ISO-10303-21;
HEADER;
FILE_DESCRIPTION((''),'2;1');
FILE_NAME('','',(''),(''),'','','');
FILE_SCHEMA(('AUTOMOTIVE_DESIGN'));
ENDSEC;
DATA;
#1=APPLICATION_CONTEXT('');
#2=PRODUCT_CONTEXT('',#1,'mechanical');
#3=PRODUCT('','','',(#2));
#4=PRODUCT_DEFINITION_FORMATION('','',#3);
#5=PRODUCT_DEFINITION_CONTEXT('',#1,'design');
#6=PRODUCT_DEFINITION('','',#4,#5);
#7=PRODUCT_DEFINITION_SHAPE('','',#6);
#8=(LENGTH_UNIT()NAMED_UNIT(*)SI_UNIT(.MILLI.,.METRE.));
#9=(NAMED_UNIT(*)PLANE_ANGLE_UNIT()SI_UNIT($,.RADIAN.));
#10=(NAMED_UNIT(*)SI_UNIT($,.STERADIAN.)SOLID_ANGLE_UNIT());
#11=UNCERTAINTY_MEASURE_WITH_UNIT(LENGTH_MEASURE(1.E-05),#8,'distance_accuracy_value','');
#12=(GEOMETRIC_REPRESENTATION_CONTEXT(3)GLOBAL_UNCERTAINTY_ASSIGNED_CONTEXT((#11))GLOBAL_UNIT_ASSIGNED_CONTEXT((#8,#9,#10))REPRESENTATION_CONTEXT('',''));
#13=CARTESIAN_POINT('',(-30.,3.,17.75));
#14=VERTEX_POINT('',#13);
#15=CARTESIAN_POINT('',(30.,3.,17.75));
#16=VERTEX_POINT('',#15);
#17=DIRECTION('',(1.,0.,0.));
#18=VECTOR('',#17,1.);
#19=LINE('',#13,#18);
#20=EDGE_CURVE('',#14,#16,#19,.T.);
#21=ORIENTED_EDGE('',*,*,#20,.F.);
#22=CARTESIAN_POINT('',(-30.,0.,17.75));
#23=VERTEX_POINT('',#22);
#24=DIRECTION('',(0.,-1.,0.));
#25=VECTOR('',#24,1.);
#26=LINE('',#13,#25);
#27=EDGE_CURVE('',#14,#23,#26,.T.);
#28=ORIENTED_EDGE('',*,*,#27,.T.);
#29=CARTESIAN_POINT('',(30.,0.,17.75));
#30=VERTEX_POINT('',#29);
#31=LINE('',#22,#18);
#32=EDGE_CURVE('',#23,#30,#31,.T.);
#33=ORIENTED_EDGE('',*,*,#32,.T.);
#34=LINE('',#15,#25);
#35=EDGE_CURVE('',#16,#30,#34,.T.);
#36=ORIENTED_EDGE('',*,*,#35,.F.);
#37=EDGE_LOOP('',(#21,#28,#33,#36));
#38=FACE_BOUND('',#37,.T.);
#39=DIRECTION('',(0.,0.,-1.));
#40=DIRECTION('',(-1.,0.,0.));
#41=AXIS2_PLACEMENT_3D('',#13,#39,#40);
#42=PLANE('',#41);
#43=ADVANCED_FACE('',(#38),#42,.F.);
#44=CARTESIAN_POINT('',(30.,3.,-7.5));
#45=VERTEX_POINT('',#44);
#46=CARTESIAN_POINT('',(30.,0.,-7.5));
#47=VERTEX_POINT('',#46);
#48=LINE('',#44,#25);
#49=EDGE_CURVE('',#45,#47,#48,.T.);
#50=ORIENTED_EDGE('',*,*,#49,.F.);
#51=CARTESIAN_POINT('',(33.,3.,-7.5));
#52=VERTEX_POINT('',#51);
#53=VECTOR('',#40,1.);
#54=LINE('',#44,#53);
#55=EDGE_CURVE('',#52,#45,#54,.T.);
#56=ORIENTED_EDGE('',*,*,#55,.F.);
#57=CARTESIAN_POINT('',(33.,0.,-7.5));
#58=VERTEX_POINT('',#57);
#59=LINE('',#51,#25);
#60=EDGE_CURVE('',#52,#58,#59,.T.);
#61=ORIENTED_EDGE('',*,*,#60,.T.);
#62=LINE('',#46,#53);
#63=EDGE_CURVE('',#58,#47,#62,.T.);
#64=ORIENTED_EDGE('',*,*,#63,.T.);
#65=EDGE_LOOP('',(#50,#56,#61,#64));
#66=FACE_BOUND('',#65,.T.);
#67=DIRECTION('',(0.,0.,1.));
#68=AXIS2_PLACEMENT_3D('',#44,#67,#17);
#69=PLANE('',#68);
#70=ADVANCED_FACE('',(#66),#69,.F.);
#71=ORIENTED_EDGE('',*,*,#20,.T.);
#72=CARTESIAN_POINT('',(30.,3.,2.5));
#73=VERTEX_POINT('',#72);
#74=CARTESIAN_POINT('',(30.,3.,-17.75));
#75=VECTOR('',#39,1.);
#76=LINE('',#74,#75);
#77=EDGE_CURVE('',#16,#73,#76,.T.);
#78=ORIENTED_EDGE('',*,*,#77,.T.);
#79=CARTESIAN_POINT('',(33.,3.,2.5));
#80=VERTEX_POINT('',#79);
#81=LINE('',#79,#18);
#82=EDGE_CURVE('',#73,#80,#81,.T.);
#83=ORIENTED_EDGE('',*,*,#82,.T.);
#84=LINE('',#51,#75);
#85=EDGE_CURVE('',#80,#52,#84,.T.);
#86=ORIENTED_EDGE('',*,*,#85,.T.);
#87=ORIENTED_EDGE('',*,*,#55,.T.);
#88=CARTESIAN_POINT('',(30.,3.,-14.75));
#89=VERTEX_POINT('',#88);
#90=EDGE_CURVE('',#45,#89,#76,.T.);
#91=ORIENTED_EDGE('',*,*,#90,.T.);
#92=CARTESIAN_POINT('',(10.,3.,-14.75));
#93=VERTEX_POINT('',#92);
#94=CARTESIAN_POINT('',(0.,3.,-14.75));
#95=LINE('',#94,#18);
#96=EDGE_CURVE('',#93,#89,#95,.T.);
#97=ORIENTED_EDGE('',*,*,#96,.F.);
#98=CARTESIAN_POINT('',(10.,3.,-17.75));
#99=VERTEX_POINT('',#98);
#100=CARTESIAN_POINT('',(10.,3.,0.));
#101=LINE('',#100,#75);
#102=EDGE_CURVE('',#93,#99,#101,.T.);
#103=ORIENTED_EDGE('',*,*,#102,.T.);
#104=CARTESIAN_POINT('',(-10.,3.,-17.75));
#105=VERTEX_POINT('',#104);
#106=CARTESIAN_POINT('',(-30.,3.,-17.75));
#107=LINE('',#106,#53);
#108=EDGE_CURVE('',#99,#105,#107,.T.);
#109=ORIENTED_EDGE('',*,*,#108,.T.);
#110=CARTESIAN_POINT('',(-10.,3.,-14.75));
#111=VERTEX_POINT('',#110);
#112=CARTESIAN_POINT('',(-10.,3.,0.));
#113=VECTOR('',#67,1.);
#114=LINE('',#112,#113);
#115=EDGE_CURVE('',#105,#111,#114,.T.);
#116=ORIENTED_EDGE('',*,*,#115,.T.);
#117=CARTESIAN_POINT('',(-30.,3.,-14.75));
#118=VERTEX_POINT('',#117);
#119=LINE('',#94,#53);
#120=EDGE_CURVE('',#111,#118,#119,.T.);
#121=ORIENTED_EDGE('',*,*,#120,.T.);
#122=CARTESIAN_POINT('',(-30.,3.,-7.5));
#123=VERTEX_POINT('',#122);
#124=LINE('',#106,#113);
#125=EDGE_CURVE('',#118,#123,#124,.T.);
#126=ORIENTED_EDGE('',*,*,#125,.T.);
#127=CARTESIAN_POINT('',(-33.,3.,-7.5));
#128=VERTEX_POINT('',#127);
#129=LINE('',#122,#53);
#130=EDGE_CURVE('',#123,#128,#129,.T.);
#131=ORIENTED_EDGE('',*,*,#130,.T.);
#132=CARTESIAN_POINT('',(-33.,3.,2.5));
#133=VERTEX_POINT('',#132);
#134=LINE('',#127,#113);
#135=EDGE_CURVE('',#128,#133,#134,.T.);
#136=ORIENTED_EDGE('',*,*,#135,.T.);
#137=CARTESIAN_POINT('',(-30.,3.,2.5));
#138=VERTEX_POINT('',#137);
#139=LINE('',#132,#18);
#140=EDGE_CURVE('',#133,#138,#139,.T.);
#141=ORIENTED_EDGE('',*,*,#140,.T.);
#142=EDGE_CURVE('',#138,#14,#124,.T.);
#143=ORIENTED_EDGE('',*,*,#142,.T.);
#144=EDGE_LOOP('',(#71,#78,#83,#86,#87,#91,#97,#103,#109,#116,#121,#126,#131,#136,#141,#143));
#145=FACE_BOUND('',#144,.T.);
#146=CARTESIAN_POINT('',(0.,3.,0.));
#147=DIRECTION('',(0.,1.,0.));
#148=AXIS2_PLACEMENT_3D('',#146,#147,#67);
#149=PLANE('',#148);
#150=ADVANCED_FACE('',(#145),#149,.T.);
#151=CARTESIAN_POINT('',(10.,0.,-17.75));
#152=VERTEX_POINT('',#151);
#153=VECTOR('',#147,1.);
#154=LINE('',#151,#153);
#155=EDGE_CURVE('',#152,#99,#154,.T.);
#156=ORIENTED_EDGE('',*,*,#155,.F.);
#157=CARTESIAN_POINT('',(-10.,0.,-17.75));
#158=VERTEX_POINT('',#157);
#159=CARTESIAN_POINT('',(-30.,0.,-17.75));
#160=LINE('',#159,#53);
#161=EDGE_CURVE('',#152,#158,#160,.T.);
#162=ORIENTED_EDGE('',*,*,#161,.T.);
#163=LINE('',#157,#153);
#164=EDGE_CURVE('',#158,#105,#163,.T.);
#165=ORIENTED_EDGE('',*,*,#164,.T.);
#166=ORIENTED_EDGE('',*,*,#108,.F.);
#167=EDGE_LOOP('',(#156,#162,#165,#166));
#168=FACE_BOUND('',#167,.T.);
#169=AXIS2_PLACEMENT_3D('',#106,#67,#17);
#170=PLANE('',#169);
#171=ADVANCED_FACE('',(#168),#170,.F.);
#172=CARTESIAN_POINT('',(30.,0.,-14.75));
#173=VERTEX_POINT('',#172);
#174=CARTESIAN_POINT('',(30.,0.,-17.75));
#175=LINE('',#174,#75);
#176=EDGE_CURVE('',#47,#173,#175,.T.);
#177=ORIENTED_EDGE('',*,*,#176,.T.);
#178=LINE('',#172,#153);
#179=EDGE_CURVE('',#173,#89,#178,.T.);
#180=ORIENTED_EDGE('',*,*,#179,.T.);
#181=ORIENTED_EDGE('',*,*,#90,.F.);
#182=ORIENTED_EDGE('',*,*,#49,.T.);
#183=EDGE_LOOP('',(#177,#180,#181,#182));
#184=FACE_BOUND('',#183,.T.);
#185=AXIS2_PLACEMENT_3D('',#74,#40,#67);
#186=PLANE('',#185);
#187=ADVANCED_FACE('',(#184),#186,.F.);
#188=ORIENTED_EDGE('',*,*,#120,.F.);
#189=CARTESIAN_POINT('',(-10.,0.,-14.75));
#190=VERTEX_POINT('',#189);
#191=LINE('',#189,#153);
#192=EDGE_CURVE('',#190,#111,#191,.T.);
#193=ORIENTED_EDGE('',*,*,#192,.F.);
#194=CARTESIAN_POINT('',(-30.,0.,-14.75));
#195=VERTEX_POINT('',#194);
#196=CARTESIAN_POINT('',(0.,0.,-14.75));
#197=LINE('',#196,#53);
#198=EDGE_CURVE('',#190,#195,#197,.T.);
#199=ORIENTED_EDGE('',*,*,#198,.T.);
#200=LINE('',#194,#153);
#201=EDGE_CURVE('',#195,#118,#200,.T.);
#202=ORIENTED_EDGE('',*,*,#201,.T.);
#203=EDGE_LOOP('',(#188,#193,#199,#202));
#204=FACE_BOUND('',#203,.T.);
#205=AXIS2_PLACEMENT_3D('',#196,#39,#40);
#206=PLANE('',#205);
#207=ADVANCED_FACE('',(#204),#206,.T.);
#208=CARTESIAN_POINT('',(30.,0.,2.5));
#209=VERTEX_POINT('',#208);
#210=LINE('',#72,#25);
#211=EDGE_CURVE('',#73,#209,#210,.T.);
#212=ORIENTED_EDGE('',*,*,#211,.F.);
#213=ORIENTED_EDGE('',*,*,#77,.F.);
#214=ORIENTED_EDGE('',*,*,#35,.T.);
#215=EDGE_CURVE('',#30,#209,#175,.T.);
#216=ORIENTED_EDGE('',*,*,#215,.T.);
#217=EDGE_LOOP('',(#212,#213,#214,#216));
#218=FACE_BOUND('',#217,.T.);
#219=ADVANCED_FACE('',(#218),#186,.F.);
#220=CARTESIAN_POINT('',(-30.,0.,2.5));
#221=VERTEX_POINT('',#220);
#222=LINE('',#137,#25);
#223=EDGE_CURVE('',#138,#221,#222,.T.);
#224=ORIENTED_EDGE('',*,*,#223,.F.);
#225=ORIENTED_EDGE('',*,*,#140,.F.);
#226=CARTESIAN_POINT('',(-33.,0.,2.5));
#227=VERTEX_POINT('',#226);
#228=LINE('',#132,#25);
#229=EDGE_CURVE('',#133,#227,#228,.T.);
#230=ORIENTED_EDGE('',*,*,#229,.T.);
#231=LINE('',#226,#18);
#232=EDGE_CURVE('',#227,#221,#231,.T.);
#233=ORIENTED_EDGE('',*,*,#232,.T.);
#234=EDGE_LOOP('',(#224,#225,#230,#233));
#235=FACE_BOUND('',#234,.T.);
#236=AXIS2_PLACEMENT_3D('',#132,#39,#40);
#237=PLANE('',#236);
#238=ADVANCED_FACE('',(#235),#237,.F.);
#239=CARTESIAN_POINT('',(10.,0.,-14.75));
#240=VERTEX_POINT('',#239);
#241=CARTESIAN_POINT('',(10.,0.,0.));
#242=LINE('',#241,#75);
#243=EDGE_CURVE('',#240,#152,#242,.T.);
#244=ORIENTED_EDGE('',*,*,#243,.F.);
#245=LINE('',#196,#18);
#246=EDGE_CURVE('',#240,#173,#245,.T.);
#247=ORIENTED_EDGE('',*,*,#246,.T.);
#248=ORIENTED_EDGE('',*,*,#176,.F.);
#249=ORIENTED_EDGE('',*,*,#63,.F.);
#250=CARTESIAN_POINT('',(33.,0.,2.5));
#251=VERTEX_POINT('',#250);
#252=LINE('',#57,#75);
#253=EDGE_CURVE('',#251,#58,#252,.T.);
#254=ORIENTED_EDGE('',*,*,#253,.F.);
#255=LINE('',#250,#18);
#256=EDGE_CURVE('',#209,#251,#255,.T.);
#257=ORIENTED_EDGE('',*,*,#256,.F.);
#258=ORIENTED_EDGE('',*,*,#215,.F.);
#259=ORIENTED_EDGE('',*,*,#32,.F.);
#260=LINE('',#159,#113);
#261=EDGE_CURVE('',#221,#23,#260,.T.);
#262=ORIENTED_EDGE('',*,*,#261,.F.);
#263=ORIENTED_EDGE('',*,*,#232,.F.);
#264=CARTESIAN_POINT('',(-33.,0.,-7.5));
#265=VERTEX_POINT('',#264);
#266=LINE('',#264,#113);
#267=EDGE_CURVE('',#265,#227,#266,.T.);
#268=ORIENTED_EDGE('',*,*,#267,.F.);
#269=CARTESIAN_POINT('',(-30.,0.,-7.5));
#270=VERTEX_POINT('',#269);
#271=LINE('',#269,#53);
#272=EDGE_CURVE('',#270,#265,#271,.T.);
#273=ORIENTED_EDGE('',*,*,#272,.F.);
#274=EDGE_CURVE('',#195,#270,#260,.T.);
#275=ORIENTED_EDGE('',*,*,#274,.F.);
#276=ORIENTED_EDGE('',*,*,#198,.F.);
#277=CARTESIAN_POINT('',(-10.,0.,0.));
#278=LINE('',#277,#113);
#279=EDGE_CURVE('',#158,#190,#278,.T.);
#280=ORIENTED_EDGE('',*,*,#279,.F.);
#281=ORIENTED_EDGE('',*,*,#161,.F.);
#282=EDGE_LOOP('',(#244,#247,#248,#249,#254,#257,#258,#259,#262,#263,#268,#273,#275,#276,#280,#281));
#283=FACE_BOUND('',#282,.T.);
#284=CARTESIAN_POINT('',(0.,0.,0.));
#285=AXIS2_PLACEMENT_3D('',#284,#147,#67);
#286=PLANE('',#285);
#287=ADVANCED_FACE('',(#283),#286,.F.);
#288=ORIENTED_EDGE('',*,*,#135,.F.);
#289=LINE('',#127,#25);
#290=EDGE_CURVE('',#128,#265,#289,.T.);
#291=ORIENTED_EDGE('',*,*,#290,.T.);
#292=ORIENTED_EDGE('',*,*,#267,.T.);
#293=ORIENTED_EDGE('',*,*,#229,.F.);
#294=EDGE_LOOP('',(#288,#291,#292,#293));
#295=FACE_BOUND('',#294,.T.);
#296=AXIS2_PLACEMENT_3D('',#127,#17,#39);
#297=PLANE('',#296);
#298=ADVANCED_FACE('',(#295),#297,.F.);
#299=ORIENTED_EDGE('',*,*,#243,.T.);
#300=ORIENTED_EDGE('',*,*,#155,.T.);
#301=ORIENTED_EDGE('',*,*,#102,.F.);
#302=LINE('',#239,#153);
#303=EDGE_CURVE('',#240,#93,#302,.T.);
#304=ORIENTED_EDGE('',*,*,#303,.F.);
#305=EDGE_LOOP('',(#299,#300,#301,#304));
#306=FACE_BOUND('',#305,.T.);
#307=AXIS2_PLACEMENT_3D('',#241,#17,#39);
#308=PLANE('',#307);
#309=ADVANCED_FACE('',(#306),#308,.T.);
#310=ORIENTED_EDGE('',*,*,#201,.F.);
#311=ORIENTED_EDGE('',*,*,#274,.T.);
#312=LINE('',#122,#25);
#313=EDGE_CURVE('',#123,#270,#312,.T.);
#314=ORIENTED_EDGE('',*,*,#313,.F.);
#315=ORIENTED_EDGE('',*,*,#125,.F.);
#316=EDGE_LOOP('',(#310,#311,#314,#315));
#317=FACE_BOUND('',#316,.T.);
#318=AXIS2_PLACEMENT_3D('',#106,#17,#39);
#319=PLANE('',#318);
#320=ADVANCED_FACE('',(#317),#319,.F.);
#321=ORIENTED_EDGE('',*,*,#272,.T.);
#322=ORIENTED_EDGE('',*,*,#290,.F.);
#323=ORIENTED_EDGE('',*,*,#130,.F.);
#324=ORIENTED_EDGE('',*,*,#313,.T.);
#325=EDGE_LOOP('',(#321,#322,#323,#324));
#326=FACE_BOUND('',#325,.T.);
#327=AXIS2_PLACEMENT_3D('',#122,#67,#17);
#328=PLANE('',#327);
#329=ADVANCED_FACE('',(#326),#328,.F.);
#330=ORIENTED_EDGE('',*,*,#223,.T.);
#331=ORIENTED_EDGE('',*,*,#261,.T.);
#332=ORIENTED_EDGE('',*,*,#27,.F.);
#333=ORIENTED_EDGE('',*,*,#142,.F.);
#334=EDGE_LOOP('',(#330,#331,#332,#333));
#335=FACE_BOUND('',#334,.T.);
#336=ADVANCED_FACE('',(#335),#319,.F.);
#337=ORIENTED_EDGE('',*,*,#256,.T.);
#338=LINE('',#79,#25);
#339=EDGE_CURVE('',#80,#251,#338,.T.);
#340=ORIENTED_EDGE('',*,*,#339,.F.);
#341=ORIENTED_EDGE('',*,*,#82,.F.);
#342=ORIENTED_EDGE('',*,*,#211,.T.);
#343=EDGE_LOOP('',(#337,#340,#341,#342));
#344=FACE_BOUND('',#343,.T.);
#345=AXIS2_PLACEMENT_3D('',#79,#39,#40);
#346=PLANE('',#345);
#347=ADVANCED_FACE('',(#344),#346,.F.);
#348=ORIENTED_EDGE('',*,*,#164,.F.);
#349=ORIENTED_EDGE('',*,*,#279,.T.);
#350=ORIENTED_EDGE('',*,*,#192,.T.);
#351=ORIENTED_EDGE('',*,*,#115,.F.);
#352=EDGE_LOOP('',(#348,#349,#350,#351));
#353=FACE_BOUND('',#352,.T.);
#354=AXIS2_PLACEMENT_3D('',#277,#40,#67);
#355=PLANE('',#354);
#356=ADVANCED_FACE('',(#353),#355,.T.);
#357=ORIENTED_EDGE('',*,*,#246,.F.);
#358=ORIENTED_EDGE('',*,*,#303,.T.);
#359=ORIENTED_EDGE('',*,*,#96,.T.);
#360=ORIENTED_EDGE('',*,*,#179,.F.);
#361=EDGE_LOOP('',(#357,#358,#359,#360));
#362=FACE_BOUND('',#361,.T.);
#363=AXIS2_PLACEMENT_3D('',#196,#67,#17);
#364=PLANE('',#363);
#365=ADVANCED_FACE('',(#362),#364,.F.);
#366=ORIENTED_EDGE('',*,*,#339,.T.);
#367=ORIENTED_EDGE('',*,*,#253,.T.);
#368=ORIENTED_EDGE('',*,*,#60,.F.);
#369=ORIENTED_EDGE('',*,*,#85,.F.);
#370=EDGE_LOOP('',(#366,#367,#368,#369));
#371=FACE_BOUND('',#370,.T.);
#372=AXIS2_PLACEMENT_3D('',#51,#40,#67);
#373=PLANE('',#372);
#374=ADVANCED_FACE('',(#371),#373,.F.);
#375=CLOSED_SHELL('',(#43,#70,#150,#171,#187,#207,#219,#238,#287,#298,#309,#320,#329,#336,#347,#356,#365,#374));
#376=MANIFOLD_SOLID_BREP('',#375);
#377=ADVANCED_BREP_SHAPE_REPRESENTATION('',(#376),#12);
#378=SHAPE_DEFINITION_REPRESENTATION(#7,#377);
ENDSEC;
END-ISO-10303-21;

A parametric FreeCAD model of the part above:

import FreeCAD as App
import Part
import Sketcher

V = App.Vector

doc = App.newDocument("Part")
body = doc.addObject("PartDesign::Body", "Body")

# Sketch on XZ plane
sketch1 = body.newObject("Sketcher::SketchObject", "Sketch")
sketch1.AttachmentSupport = (doc.getObject("XZ_Plane"), [""])
sketch1.MapMode = "FlatFace"
sketch1.addGeometry(Part.LineSegment(V(-30, -17.75, 0), V(-30, 17.75, 0)), False)
sketch1.addGeometry(Part.LineSegment(V(-30, 17.75, 0), V(30, 17.75, 0)), False)
sketch1.addGeometry(Part.LineSegment(V(30, 17.75, 0), V(30, -17.75, 0)), False)
sketch1.addGeometry(Part.LineSegment(V(30, -17.75, 0), V(-30, -17.75, 0)), False)
sketch1.addConstraint(Sketcher.Constraint("Coincident", 0, 2, 1, 1))
sketch1.addConstraint(Sketcher.Constraint("Coincident", 1, 2, 2, 1))
sketch1.addConstraint(Sketcher.Constraint("Coincident", 2, 2, 3, 1))
sketch1.addConstraint(Sketcher.Constraint("Coincident", 3, 2, 0, 1))
sketch1.addConstraint(Sketcher.Constraint("Vertical", 0))
sketch1.addConstraint(Sketcher.Constraint("Horizontal", 1))
sketch1.addConstraint(Sketcher.Constraint("Vertical", 2))
sketch1.addConstraint(Sketcher.Constraint("Horizontal", 3))
sketch1.addConstraint(Sketcher.Constraint("Symmetric", 0, 2, 2, 2, -1, 1))
sketch1.addConstraint(Sketcher.Constraint("DistanceX", 1, 1, 1, 2, 60.0))
sketch1.addConstraint(Sketcher.Constraint("DistanceY", 0, 1, 0, 2, 35.5))
pad1 = body.newObject("PartDesign::Pad", "Pad")
pad1.Profile = sketch1
pad1.Length = 3
pad1.Reversed = True

# Sketch on XZ plane
sketch2 = body.newObject("Sketcher::SketchObject", "Sketch001")
sketch2.AttachmentSupport = (doc.getObject("XZ_Plane"), [""])
sketch2.MapMode = "FlatFace"
sketch2.addGeometry(Part.LineSegment(V(-33, -7.5, 0), V(-33, 2.5, 0)), False)
sketch2.addGeometry(Part.LineSegment(V(-33, 2.5, 0), V(-30, 2.5, 0)), False)
sketch2.addGeometry(Part.LineSegment(V(-30, 2.5, 0), V(-30, -7.5, 0)), False)
sketch2.addGeometry(Part.LineSegment(V(-30, -7.5, 0), V(-33, -7.5, 0)), False)
sketch2.addGeometry(Part.LineSegment(V(30, -7.5, 0), V(30, 2.5, 0)), False)
sketch2.addGeometry(Part.LineSegment(V(30, 2.5, 0), V(33, 2.5, 0)), False)
sketch2.addGeometry(Part.LineSegment(V(33, 2.5, 0), V(33, -7.5, 0)), False)
sketch2.addGeometry(Part.LineSegment(V(33, -7.5, 0), V(30, -7.5, 0)), False)
sketch2.addConstraint(Sketcher.Constraint("Coincident", 0, 2, 1, 1))
sketch2.addConstraint(Sketcher.Constraint("Coincident", 1, 2, 2, 1))
sketch2.addConstraint(Sketcher.Constraint("Coincident", 2, 2, 3, 1))
sketch2.addConstraint(Sketcher.Constraint("Coincident", 3, 2, 0, 1))
sketch2.addConstraint(Sketcher.Constraint("Coincident", 4, 2, 5, 1))
sketch2.addConstraint(Sketcher.Constraint("Coincident", 5, 2, 6, 1))
sketch2.addConstraint(Sketcher.Constraint("Coincident", 6, 2, 7, 1))
sketch2.addConstraint(Sketcher.Constraint("Coincident", 7, 2, 4, 1))
sketch2.addConstraint(Sketcher.Constraint("Vertical", 0))
sketch2.addConstraint(Sketcher.Constraint("Horizontal", 1))
sketch2.addConstraint(Sketcher.Constraint("Vertical", 2))
sketch2.addConstraint(Sketcher.Constraint("Horizontal", 3))
sketch2.addConstraint(Sketcher.Constraint("Vertical", 4))
sketch2.addConstraint(Sketcher.Constraint("Horizontal", 5))
sketch2.addConstraint(Sketcher.Constraint("Vertical", 6))
sketch2.addConstraint(Sketcher.Constraint("Horizontal", 7))
sketch2.addConstraint(Sketcher.Constraint("Symmetric", 1, 2, 4, 2, -2))
sketch2.addConstraint(Sketcher.Constraint("Symmetric", 3, 2, 6, 2, -2))
sketch2.addConstraint(Sketcher.Constraint("DistanceX", 1, 1, 1, 2, 3.0))
sketch2.addConstraint(Sketcher.Constraint("DistanceY", 0, 1, 0, 2, 10.0))
sketch2.addConstraint(Sketcher.Constraint("DistanceX", 0, 2, -1, 1, 33.0))
sketch2.addConstraint(Sketcher.Constraint("DistanceY", -1, 1, 0, 2, 2.5))
pad2 = body.newObject("PartDesign::Pad", "Pad001")
pad2.Profile = sketch2
pad2.Length = 3
pad2.Reversed = True

# Sketch on XZ plane
sketch3 = body.newObject("Sketcher::SketchObject", "Sketch002")
sketch3.AttachmentSupport = (doc.getObject("XZ_Plane"), [""])
sketch3.MapMode = "FlatFace"
sketch3.AttachmentOffset = App.Placement(V(0, 0, -3), App.Rotation())
sketch3.addGeometry(Part.LineSegment(V(-30, -17.75, 0), V(-30, -14.75, 0)), False)
sketch3.addGeometry(Part.LineSegment(V(-30, -14.75, 0), V(-10, -14.75, 0)), False)
sketch3.addGeometry(Part.LineSegment(V(-10, -14.75, 0), V(-10, -17.75, 0)), False)
sketch3.addGeometry(Part.LineSegment(V(-10, -17.75, 0), V(-30, -17.75, 0)), False)
sketch3.addGeometry(Part.LineSegment(V(10, -17.75, 0), V(10, -14.75, 0)), False)
sketch3.addGeometry(Part.LineSegment(V(10, -14.75, 0), V(30, -14.75, 0)), False)
sketch3.addGeometry(Part.LineSegment(V(30, -14.75, 0), V(30, -17.75, 0)), False)
sketch3.addGeometry(Part.LineSegment(V(30, -17.75, 0), V(10, -17.75, 0)), False)
sketch3.addConstraint(Sketcher.Constraint("Coincident", 0, 2, 1, 1))
sketch3.addConstraint(Sketcher.Constraint("Coincident", 1, 2, 2, 1))
sketch3.addConstraint(Sketcher.Constraint("Coincident", 2, 2, 3, 1))
sketch3.addConstraint(Sketcher.Constraint("Coincident", 3, 2, 0, 1))
sketch3.addConstraint(Sketcher.Constraint("Coincident", 4, 2, 5, 1))
sketch3.addConstraint(Sketcher.Constraint("Coincident", 5, 2, 6, 1))
sketch3.addConstraint(Sketcher.Constraint("Coincident", 6, 2, 7, 1))
sketch3.addConstraint(Sketcher.Constraint("Coincident", 7, 2, 4, 1))
sketch3.addConstraint(Sketcher.Constraint("Vertical", 0))
sketch3.addConstraint(Sketcher.Constraint("Horizontal", 1))
sketch3.addConstraint(Sketcher.Constraint("Vertical", 2))
sketch3.addConstraint(Sketcher.Constraint("Horizontal", 3))
sketch3.addConstraint(Sketcher.Constraint("Vertical", 4))
sketch3.addConstraint(Sketcher.Constraint("Horizontal", 5))
sketch3.addConstraint(Sketcher.Constraint("Vertical", 6))
sketch3.addConstraint(Sketcher.Constraint("Horizontal", 7))
sketch3.addConstraint(Sketcher.Constraint("Symmetric", 1, 2, 4, 2, -2))
sketch3.addConstraint(Sketcher.Constraint("Symmetric", 3, 2, 6, 2, -2))
sketch3.addConstraint(Sketcher.Constraint("DistanceX", 1, 1, 1, 2, 20.0))
sketch3.addConstraint(Sketcher.Constraint("DistanceY", 0, 1, 0, 2, 3.0))
sketch3.addConstraint(Sketcher.Constraint("DistanceX", 0, 2, -1, 1, 30.0))
sketch3.addConstraint(Sketcher.Constraint("DistanceY", 0, 2, -1, 1, 14.75))
pocket1 = body.newObject("PartDesign::Pocket", "Pocket")
pocket1.Profile = sketch3
pocket1.Length = 3
pocket1.Reversed = True

doc.recompute()
